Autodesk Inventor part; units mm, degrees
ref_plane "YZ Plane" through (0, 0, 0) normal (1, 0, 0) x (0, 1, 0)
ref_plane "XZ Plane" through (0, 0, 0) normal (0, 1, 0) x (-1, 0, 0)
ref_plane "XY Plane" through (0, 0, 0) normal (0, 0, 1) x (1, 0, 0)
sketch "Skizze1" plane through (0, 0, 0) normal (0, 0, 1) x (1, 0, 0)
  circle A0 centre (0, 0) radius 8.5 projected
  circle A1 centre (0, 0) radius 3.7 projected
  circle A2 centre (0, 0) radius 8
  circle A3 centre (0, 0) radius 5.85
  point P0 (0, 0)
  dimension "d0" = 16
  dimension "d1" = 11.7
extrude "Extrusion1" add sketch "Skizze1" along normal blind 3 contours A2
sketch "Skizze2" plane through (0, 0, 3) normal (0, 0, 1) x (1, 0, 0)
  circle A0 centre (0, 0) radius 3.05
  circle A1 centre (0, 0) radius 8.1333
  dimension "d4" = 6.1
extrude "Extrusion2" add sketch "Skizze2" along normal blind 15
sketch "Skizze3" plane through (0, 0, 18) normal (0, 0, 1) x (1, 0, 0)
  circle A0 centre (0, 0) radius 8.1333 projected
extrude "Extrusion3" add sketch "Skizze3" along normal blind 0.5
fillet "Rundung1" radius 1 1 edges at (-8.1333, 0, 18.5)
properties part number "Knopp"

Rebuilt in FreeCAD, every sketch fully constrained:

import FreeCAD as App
import Part
import Sketcher


def edges_at(feature, points):
    """Names of the edges that pass closest to the given points."""
    edges = feature.Shape.Edges
    near = lambda p: min(range(len(edges)), key=lambda i: edges[i].distToShape(Part.Vertex(*p))[0])
    return sorted({f"Edge{near(p) + 1}" for p in points})

doc = App.newDocument("Part")
body = doc.addObject("PartDesign::Body", "Body")

sketch1 = doc.addObject("Sketcher::SketchObject", "Sketch")
body.addObject(sketch1)
sketch1.AttachmentSupport = (doc.XY_Plane, [""])
sketch1.MapMode = "FlatFace"
sketch1.addGeometry(Part.Circle(App.Vector(0, 0, 0), App.Vector(0, 0, 1), 8), False)
sketch1.addGeometry(Part.Circle(App.Vector(0, 0, 0), App.Vector(0, 0, 1), 5.85), False)
sketch1.addConstraint(Sketcher.Constraint("Coincident", 0, 3, -1, 1))
sketch1.addConstraint(Sketcher.Constraint("Coincident", 1, 3, -1, 1))
sketch1.addConstraint(Sketcher.Constraint("Diameter", 0, 16.0))
sketch1.addConstraint(Sketcher.Constraint("Diameter", 1, 11.7))
pad1 = doc.addObject("PartDesign::Pad", "Pad")
body.addObject(pad1)
pad1.Profile = sketch1
pad1.Length = 3

sketch2 = doc.addObject("Sketcher::SketchObject", "Sketch001")
body.addObject(sketch2)
sketch2.AttachmentSupport = (doc.XY_Plane, [""])
sketch2.MapMode = "FlatFace"
sketch2.AttachmentOffset = App.Placement(App.Vector(0, 0, 3), App.Rotation())
sketch2.addGeometry(Part.Circle(App.Vector(0, 0, 0), App.Vector(0, 0, 1), 8.1333), False)
sketch2.addGeometry(Part.Circle(App.Vector(0, 0, 0), App.Vector(0, 0, 1), 3.05), False)
sketch2.addConstraint(Sketcher.Constraint("Coincident", 0, 3, -1, 1))
sketch2.addConstraint(Sketcher.Constraint("Coincident", 1, 3, -1, 1))
sketch2.addConstraint(Sketcher.Constraint("Diameter", 1, 6.1))
sketch2.addConstraint(Sketcher.Constraint("Diameter", 0, 16.2666))
pad2 = doc.addObject("PartDesign::Pad", "Pad001")
body.addObject(pad2)
pad2.Profile = sketch2
pad2.Length = 15

sketch3 = doc.addObject("Sketcher::SketchObject", "Sketch002")
body.addObject(sketch3)
sketch3.AttachmentSupport = (doc.XY_Plane, [""])
sketch3.MapMode = "FlatFace"
sketch3.AttachmentOffset = App.Placement(App.Vector(0, 0, 18), App.Rotation())
sketch3.addGeometry(Part.Circle(App.Vector(0, 0, 0), App.Vector(0, 0, 1), 8.1333), False)
sketch3.addConstraint(Sketcher.Constraint("Coincident", 0, 3, -1, 1))
sketch3.addConstraint(Sketcher.Constraint("Diameter", 0, 16.2666))
pad3 = doc.addObject("PartDesign::Pad", "Pad002")
body.addObject(pad3)
pad3.Profile = sketch3
pad3.Length = 0.5
doc.recompute()

fillet = doc.addObject("PartDesign::Fillet", "Fillet")
body.addObject(fillet)
fillet.Base = (pad3, edges_at(pad3, [(-8.133, 0, 18.5)]))
fillet.Radius = 1

doc.recompute()
